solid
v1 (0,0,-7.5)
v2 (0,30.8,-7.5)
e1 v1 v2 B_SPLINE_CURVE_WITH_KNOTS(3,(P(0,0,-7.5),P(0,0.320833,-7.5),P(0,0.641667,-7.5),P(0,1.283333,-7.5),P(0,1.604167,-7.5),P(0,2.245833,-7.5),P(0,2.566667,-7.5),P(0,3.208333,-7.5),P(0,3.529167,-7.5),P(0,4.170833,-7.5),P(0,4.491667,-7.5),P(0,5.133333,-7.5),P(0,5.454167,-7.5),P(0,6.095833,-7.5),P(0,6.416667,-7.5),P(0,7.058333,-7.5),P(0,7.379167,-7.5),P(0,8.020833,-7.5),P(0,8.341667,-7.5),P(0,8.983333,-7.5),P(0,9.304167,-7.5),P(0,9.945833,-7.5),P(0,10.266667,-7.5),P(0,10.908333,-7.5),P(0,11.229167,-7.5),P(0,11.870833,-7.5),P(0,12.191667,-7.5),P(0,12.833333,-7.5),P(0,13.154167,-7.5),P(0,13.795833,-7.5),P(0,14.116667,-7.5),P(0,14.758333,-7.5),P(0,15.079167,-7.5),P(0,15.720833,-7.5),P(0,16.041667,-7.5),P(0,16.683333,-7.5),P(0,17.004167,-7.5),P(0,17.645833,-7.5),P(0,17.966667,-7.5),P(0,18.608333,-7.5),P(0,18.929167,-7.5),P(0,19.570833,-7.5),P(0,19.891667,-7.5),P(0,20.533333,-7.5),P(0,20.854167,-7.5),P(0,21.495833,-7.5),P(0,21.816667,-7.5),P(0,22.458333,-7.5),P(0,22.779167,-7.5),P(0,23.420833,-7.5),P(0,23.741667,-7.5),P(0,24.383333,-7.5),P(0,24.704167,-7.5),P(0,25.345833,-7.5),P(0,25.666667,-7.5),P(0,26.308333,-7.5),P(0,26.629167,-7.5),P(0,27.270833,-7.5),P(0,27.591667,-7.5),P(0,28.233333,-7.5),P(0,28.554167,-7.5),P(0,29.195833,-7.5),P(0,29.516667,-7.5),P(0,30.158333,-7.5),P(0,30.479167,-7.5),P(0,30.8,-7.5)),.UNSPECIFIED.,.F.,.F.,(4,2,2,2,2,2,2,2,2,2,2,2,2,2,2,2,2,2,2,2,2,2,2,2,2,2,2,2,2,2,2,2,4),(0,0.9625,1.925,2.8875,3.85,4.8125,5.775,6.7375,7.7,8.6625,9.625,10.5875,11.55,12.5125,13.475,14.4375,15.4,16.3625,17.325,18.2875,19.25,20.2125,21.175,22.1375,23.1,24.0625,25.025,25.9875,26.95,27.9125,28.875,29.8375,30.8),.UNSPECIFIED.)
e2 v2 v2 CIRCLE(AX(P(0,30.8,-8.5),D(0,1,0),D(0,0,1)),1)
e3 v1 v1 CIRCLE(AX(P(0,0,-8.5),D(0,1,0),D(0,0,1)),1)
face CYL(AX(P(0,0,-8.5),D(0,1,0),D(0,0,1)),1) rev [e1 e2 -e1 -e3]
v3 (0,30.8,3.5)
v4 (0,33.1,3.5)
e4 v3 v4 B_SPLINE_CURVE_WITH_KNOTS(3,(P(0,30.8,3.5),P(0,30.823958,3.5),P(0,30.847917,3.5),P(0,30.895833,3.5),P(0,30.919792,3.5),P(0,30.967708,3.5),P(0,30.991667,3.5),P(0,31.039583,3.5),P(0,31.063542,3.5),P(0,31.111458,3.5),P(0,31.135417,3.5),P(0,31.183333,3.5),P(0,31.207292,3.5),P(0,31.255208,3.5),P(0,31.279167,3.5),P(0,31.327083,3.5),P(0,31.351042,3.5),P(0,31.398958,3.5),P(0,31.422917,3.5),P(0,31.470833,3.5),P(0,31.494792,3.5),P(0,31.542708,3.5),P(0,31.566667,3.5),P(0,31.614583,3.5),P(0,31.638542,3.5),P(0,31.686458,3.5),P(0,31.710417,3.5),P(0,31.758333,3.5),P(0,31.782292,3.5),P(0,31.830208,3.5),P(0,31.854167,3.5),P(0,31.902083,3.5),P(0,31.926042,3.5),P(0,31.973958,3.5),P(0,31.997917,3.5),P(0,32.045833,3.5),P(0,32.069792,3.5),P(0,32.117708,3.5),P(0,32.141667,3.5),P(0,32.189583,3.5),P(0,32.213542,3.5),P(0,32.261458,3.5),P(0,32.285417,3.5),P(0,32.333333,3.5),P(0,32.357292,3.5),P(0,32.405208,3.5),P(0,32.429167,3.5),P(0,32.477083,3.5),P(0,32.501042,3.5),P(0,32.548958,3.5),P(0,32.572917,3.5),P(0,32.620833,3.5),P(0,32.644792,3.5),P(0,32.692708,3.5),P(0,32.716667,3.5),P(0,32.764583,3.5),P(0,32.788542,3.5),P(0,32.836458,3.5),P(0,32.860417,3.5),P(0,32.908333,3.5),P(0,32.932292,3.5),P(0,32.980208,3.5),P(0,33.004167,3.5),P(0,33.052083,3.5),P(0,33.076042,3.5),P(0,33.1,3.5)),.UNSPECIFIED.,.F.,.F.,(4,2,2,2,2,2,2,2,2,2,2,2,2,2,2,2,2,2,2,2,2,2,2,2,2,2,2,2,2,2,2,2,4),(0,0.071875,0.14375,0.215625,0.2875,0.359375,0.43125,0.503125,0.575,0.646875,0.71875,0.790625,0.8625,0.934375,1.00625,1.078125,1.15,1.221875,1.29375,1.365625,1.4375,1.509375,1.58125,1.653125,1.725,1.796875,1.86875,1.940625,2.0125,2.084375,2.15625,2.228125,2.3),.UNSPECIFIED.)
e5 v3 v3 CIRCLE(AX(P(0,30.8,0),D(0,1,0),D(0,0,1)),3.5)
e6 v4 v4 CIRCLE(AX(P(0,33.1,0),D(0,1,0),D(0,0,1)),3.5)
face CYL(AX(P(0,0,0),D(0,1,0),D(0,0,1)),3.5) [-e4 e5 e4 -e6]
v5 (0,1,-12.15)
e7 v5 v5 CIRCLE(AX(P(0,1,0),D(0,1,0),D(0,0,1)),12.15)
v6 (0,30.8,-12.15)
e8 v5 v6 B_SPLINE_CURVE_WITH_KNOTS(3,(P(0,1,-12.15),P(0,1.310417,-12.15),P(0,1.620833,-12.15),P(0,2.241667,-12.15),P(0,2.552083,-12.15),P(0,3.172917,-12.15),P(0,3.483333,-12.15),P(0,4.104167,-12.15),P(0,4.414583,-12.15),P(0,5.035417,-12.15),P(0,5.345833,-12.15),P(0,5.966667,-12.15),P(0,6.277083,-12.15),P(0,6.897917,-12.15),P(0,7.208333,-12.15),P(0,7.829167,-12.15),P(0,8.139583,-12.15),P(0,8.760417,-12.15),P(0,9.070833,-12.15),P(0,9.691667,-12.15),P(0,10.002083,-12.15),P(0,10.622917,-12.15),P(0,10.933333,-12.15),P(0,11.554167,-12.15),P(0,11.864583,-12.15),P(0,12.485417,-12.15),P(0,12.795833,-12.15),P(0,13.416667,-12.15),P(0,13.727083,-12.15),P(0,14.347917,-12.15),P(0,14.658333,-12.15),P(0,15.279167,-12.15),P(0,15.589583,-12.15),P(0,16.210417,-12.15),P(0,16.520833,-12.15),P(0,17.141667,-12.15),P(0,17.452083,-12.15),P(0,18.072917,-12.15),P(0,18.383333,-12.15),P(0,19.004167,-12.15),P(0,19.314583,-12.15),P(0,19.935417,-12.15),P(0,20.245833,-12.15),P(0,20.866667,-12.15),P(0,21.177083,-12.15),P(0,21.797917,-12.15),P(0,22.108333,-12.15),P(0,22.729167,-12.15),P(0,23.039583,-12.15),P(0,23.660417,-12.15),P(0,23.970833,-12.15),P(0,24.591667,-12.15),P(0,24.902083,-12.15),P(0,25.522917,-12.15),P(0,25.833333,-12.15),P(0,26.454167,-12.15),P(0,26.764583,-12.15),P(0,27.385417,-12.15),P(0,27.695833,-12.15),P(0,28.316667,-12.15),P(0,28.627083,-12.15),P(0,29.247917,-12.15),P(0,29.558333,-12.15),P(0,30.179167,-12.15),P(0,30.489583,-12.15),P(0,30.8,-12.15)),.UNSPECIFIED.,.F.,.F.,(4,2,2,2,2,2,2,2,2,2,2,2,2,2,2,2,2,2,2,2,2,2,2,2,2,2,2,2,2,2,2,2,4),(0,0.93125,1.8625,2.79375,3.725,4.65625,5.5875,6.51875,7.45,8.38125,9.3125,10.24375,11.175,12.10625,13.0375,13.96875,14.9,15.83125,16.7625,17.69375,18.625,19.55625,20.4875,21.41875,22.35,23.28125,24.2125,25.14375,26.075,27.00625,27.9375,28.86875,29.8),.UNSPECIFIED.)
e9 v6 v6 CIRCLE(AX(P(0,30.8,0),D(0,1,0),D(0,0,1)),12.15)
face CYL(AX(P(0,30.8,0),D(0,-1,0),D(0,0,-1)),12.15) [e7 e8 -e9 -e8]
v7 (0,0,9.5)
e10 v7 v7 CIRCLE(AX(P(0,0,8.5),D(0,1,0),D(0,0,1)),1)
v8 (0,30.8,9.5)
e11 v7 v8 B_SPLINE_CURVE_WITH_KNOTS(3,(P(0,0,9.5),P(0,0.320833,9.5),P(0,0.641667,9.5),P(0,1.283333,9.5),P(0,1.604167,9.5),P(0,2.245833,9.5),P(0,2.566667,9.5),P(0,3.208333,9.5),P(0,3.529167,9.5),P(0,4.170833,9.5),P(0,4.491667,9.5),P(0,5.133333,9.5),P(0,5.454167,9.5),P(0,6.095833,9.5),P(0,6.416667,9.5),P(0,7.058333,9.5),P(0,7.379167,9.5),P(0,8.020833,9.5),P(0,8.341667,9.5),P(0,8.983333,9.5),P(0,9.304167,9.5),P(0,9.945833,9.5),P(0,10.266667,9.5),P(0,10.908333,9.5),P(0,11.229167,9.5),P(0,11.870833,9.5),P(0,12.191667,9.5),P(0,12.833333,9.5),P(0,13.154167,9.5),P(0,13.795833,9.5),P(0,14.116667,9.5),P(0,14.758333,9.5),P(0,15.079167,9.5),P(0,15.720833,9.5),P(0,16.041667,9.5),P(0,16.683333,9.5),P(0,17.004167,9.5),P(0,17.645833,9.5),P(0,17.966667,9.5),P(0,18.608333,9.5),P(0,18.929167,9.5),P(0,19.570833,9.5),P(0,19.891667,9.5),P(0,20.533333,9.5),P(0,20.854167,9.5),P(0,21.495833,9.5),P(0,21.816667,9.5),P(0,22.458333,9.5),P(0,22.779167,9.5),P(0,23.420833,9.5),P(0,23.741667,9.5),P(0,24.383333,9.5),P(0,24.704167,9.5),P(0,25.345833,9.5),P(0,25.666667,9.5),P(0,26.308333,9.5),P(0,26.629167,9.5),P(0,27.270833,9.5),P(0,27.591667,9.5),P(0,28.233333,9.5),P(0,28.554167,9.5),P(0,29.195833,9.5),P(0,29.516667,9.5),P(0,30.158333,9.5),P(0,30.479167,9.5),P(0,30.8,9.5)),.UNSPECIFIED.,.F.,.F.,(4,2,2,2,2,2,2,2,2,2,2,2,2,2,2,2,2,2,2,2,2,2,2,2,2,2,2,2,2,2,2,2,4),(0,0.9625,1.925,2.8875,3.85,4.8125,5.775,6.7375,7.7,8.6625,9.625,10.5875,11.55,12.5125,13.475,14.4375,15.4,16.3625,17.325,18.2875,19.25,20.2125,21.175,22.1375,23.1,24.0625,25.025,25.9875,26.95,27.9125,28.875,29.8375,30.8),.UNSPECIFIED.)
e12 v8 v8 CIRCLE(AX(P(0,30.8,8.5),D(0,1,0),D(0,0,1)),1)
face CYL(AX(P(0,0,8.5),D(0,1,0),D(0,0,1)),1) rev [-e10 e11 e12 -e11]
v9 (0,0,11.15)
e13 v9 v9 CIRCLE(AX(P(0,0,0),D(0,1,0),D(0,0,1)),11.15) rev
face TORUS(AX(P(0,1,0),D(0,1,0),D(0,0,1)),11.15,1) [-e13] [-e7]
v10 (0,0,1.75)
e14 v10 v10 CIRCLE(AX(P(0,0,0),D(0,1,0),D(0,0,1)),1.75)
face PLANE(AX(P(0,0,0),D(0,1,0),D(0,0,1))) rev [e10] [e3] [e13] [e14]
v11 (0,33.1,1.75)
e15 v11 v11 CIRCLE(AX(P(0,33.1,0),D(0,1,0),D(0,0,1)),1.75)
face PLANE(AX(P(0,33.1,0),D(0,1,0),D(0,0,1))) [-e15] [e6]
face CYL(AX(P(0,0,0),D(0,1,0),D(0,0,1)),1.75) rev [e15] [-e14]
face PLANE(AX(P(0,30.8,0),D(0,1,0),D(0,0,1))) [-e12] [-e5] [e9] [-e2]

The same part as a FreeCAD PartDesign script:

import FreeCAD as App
import Part
import Sketcher
from FreeCAD import Vector
Q = App.Units.Quantity


def edges_at(feature, points):
    """Names of the edges that pass closest to the given points."""
    edges = feature.Shape.Edges
    near = lambda p: min(range(len(edges)), key=lambda i: edges[i].distToShape(Part.Vertex(*p))[0])
    return sorted({f"Edge{near(p) + 1}" for p in points})

doc = App.newDocument("Part")
body = doc.addObject("PartDesign::Body", "Body")

# Sketch on XZ plane
sketch1 = body.newObject("Sketcher::SketchObject", "Sketch")
sketch1.AttachmentSupport = (doc.getObject("XZ_Plane"), [""])
sketch1.MapMode = "FlatFace"
sketch1.addGeometry(Part.Circle(Vector(0, 0, 0), Vector(0, 0, 1), 12), False)
sketch1.addConstraint([
    Sketcher.Constraint("Coincident", 0, 3, -1, 1),
    Sketcher.Constraint("Diameter", 0, Q("24.3 mm")),
])
pad1 = body.newObject("PartDesign::Pad", "Pad")
pad1.Profile = sketch1
pad1.Length = 30.8
pad1.Reversed = True
doc.recompute()

fillet = body.newObject("PartDesign::Fillet", "Fillet")
fillet.Base = (pad1, edges_at(pad1, [(0, 0, 12.15)]))
fillet.Radius = 1

# Sketch on XZ plane
sketch2 = body.newObject("Sketcher::SketchObject", "Sketch001")
sketch2.AttachmentSupport = (doc.getObject("XZ_Plane"), [""])
sketch2.MapMode = "FlatFace"
sketch2.AttachmentOffset = App.Placement(Vector(0, 0, -30.8), App.Rotation())
sketch2.addGeometry(Part.Circle(Vector(0, 0, 0), Vector(0, 0, 1), 3.5), False)
sketch2.addConstraint([
    Sketcher.Constraint("Coincident", 0, 3, -1, 1),
    Sketcher.Constraint("Diameter", 0, Q("7 mm")),
])
pad2 = body.newObject("PartDesign::Pad", "Pad001")
pad2.Profile = sketch2
pad2.Type = "TwoLengths"
pad2.Length = 2.3
pad2.Length2 = 30.8
pad2.Reversed = True

# Sketch on XZ plane
sketch3 = body.newObject("Sketcher::SketchObject", "Sketch002")
sketch3.AttachmentSupport = (doc.getObject("XZ_Plane"), [""])
sketch3.MapMode = "FlatFace"
sketch3.AttachmentOffset = App.Placement(Vector(0, 0, -30.8), App.Rotation())
sketch3.addGeometry([
    Part.Circle(Vector(0, -8.5, 0), Vector(0, 0, 1), 1),
    Part.Circle(Vector(0, 8.5, 0), Vector(0, 0, 1), 1),
], False)
sketch3.addConstraint([
    Sketcher.Constraint("Equal", 0, 1),
    Sketcher.Constraint("Symmetric", 0, 3, 1, 3, -1, 1),
    Sketcher.Constraint("PointOnObject", 0, 3, -2),
    Sketcher.Constraint("Diameter", 0, Q("2 mm")),
    Sketcher.Constraint("DistanceY", 0, 3, 1, 3, Q("17 mm")),
])
pocket1 = body.newObject("PartDesign::Pocket", "Pocket")
pocket1.Profile = sketch3
pocket1.Type = "ThroughAll"
pocket1.Reversed = True

# Sketch on XZ plane
sketch4 = body.newObject("Sketcher::SketchObject", "Sketch003")
sketch4.AttachmentSupport = (doc.getObject("XZ_Plane"), [""])
sketch4.MapMode = "FlatFace"
sketch4.AttachmentOffset = App.Placement(Vector(0, 0, -33.1), App.Rotation())
sketch4.addGeometry(Part.Circle(Vector(0, 0, 0), Vector(0, 0, 1), 1.8), False)
sketch4.addConstraint([
    Sketcher.Constraint("Coincident", 0, 3, -1, 1),
    Sketcher.Constraint("Diameter", 0, Q("3.5 mm")),
])
pocket2 = body.newObject("PartDesign::Pocket", "Pocket001")
pocket2.Profile = sketch4
pocket2.Type = "ThroughAll"
pocket2.Reversed = True

doc.recompute()
